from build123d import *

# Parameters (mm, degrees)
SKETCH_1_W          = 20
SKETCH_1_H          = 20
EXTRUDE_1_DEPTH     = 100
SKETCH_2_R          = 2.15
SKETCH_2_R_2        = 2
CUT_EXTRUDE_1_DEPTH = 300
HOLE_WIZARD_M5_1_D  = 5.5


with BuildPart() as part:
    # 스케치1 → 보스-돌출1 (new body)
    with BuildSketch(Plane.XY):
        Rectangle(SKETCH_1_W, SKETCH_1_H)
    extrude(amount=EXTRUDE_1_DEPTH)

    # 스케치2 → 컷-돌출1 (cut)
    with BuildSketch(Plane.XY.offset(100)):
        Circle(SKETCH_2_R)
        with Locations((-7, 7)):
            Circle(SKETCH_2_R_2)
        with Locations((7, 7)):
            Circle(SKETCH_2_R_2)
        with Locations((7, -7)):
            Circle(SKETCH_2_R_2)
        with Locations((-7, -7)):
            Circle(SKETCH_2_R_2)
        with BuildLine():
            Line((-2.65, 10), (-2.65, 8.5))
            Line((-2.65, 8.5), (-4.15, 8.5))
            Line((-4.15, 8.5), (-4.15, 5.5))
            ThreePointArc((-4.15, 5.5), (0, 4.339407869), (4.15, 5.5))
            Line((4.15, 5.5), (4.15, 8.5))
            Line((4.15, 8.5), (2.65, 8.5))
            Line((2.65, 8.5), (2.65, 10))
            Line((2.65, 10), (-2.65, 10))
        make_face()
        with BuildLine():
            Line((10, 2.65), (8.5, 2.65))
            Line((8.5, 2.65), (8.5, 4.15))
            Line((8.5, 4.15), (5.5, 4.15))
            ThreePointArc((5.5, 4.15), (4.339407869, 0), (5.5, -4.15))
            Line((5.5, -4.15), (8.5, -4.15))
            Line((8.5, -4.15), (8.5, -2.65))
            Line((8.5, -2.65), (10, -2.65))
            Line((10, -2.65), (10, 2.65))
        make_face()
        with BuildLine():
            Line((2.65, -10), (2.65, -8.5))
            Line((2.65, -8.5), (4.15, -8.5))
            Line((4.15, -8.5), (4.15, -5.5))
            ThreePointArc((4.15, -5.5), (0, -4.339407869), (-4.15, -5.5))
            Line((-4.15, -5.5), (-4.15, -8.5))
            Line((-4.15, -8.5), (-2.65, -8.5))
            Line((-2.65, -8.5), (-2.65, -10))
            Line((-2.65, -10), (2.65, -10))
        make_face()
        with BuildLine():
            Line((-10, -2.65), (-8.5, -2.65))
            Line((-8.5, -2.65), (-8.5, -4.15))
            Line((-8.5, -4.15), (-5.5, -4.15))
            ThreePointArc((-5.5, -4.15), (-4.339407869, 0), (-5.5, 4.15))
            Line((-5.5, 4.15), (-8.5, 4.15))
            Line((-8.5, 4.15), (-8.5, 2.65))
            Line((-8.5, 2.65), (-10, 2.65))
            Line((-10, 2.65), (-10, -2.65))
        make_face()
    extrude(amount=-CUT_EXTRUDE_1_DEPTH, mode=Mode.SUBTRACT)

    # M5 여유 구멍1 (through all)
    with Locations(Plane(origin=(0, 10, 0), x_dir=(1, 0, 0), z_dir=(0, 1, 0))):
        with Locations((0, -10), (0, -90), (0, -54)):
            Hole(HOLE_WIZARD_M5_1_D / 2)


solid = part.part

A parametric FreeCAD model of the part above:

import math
import FreeCAD as App
import Part
import Sketcher
Q = App.Units.Quantity


def add_polygon(sketch, points):
    """Adds a closed chain of lines whose ends are joined by coincident constraints."""
    first, n = sketch.GeometryCount, len(points)
    for a, b in zip(points, points[1:] + points[:1]):
        sketch.addGeometry(Part.LineSegment(App.Vector(*a, 0), App.Vector(*b, 0)), False)
    for i in range(n):
        sketch.addConstraint(Sketcher.Constraint("Coincident", first + i, 2, first + (i + 1) % n, 1))

doc = App.newDocument("Part")
body = doc.addObject("PartDesign::Body", "Body")

sketch1 = body.newObject("Sketcher::SketchObject", "Sketch")
sketch1.AttachmentSupport = (doc.getObject("XY_Plane"), [""])
sketch1.MapMode = "FlatFace"
add_polygon(sketch1, [(-10, 10), (-10, -10), (10, -10), (10, 10)])
sketch1.addConstraint(Sketcher.Constraint("Vertical", 0))
sketch1.addConstraint(Sketcher.Constraint("Horizontal", 1))
sketch1.addConstraint(Sketcher.Constraint("Vertical", 2))
sketch1.addConstraint(Sketcher.Constraint("Horizontal", 3))
sketch1.addConstraint(Sketcher.Constraint("Symmetric", 0, 2, 2, 2, -1, 1))
sketch1.addConstraint(Sketcher.Constraint("Equal", 3, 0))
sketch1.addConstraint(Sketcher.Constraint("DistanceX", 1, 1, 1, 2, Q("20 mm")))
pad1 = body.newObject("PartDesign::Pad", "Pad")
pad1.Profile = sketch1
pad1.Length = 100

sketch2 = body.newObject("Sketcher::SketchObject", "Sketch001")
sketch2.AttachmentSupport = (doc.getObject("XY_Plane"), [""])
sketch2.MapMode = "FlatFace"
sketch2.AttachmentOffset = App.Placement(App.Vector(0, 0, 100), App.Rotation())
sketch2.addGeometry(Part.Circle(App.Vector(0, 0, 0), App.Vector(0, 0, 1), 2.1), False)
sketch2.addGeometry(Part.Circle(App.Vector(-7, 7, 0), App.Vector(0, 0, 1), 2), False)
sketch2.addGeometry(Part.Circle(App.Vector(7, 7, 0), App.Vector(0, 0, 1), 2), False)
sketch2.addGeometry(Part.Circle(App.Vector(7, -7, 0), App.Vector(0, 0, 1), 2), False)
sketch2.addGeometry(Part.Circle(App.Vector(-7, -7, 0), App.Vector(0, 0, 1), 2), False)
sketch2.addGeometry(Part.LineSegment(App.Vector(-2.6, 10, 0), App.Vector(-2.6, 8.5, 0)), False)
sketch2.addGeometry(Part.LineSegment(App.Vector(-2.6, 8.5, 0), App.Vector(-4.2, 8.5, 0)), False)
sketch2.addGeometry(Part.LineSegment(App.Vector(-4.2, 8.5, 0), App.Vector(-4.2, 5.5, 0)), False)
sketch2.addGeometry(Part.ArcOfCircle(Part.Circle(App.Vector(0, 12.3, 0), App.Vector(0, 0, 1), 8), math.radians(-121), math.radians(-59)), False)
sketch2.addGeometry(Part.LineSegment(App.Vector(4.2, 5.5, 0), App.Vector(4.2, 8.5, 0)), False)
sketch2.addGeometry(Part.LineSegment(App.Vector(4.2, 8.5, 0), App.Vector(2.6, 8.5, 0)), False)
sketch2.addGeometry(Part.LineSegment(App.Vector(2.6, 8.5, 0), App.Vector(2.6, 10, 0)), False)
sketch2.addGeometry(Part.LineSegment(App.Vector(2.6, 10, 0), App.Vector(-2.6, 10, 0)), False)
sketch2.addGeometry(Part.LineSegment(App.Vector(10, 2.6, 0), App.Vector(8.5, 2.6, 0)), False)
sketch2.addGeometry(Part.LineSegment(App.Vector(8.5, 2.6, 0), App.Vector(8.5, 4.2, 0)), False)
sketch2.addGeometry(Part.LineSegment(App.Vector(8.5, 4.2, 0), App.Vector(5.5, 4.2, 0)), False)
sketch2.addGeometry(Part.ArcOfCircle(Part.Circle(App.Vector(12.3, 0, 0), App.Vector(0, 0, 1), 8), math.radians(149), math.radians(211)), False)
sketch2.addGeometry(Part.LineSegment(App.Vector(5.5, -4.2, 0), App.Vector(8.5, -4.2, 0)), False)
sketch2.addGeometry(Part.LineSegment(App.Vector(8.5, -4.2, 0), App.Vector(8.5, -2.6, 0)), False)
sketch2.addGeometry(Part.LineSegment(App.Vector(8.5, -2.6, 0), App.Vector(10, -2.6, 0)), False)
sketch2.addGeometry(Part.LineSegment(App.Vector(10, -2.6, 0), App.Vector(10, 2.6, 0)), False)
sketch2.addGeometry(Part.LineSegment(App.Vector(2.6, -10, 0), App.Vector(2.6, -8.5, 0)), False)
sketch2.addGeometry(Part.LineSegment(App.Vector(2.6, -8.5, 0), App.Vector(4.2, -8.5, 0)), False)
sketch2.addGeometry(Part.LineSegment(App.Vector(4.2, -8.5, 0), App.Vector(4.2, -5.5, 0)), False)
sketch2.addGeometry(Part.ArcOfCircle(Part.Circle(App.Vector(0, -12.3, 0), App.Vector(0, 0, 1), 8), math.radians(59), math.radians(121)), False)
sketch2.addGeometry(Part.LineSegment(App.Vector(-4.2, -5.5, 0), App.Vector(-4.2, -8.5, 0)), False)
sketch2.addGeometry(Part.LineSegment(App.Vector(-4.2, -8.5, 0), App.Vector(-2.6, -8.5, 0)), False)
sketch2.addGeometry(Part.LineSegment(App.Vector(-2.6, -8.5, 0), App.Vector(-2.6, -10, 0)), False)
sketch2.addGeometry(Part.LineSegment(App.Vector(-2.6, -10, 0), App.Vector(2.6, -10, 0)), False)
sketch2.addGeometry(Part.LineSegment(App.Vector(-10, -2.6, 0), App.Vector(-8.5, -2.6, 0)), False)
sketch2.addGeometry(Part.LineSegment(App.Vector(-8.5, -2.6, 0), App.Vector(-8.5, -4.2, 0)), False)
sketch2.addGeometry(Part.LineSegment(App.Vector(-8.5, -4.2, 0), App.Vector(-5.5, -4.2, 0)), False)
sketch2.addGeometry(Part.ArcOfCircle(Part.Circle(App.Vector(-12.3, 0, 0), App.Vector(0, 0, 1), 8), math.radians(-31), math.radians(31)), False)
sketch2.addGeometry(Part.LineSegment(App.Vector(-5.5, 4.2, 0), App.Vector(-8.5, 4.2, 0)), False)
sketch2.addGeometry(Part.LineSegment(App.Vector(-8.5, 4.2, 0), App.Vector(-8.5, 2.6, 0)), False)
sketch2.addGeometry(Part.LineSegment(App.Vector(-8.5, 2.6, 0), App.Vector(-10, 2.6, 0)), False)
sketch2.addGeometry(Part.LineSegment(App.Vector(-10, 2.6, 0), App.Vector(-10, -2.6, 0)), False)
sketch2.addConstraint(Sketcher.Constraint("Coincident", 5, 2, 6, 1))
sketch2.addConstraint(Sketcher.Constraint("Coincident", 6, 2, 7, 1))
sketch2.addConstraint(Sketcher.Constraint("Coincident", 7, 2, 8, 1))
sketch2.addConstraint(Sketcher.Constraint("Coincident", 8, 2, 9, 1))
sketch2.addConstraint(Sketcher.Constraint("Coincident", 9, 2, 10, 1))
sketch2.addConstraint(Sketcher.Constraint("Coincident", 10, 2, 11, 1))
sketch2.addConstraint(Sketcher.Constraint("Coincident", 11, 2, 12, 1))
sketch2.addConstraint(Sketcher.Constraint("Coincident", 12, 2, 5, 1))
sketch2.addConstraint(Sketcher.Constraint("Coincident", 13, 2, 14, 1))
sketch2.addConstraint(Sketcher.Constraint("Coincident", 14, 2, 15, 1))
sketch2.addConstraint(Sketcher.Constraint("Coincident", 15, 2, 16, 1))
sketch2.addConstraint(Sketcher.Constraint("Coincident", 16, 2, 17, 1))
sketch2.addConstraint(Sketcher.Constraint("Coincident", 17, 2, 18, 1))
sketch2.addConstraint(Sketcher.Constraint("Coincident", 18, 2, 19, 1))
sketch2.addConstraint(Sketcher.Constraint("Coincident", 19, 2, 20, 1))
sketch2.addConstraint(Sketcher.Constraint("Coincident", 20, 2, 13, 1))
sketch2.addConstraint(Sketcher.Constraint("Coincident", 21, 2, 22, 1))
sketch2.addConstraint(Sketcher.Constraint("Coincident", 22, 2, 23, 1))
sketch2.addConstraint(Sketcher.Constraint("Coincident", 23, 2, 24, 1))
sketch2.addConstraint(Sketcher.Constraint("Coincident", 24, 2, 25, 1))
sketch2.addConstraint(Sketcher.Constraint("Coincident", 25, 2, 26, 1))
sketch2.addConstraint(Sketcher.Constraint("Coincident", 26, 2, 27, 1))
sketch2.addConstraint(Sketcher.Constraint("Coincident", 27, 2, 28, 1))
sketch2.addConstraint(Sketcher.Constraint("Coincident", 28, 2, 21, 1))
sketch2.addConstraint(Sketcher.Constraint("Coincident", 29, 2, 30, 1))
sketch2.addConstraint(Sketcher.Constraint("Coincident", 30, 2, 31, 1))
sketch2.addConstraint(Sketcher.Constraint("Coincident", 31, 2, 32, 1))
sketch2.addConstraint(Sketcher.Constraint("Coincident", 32, 2, 33, 1))
sketch2.addConstraint(Sketcher.Constraint("Coincident", 33, 2, 34, 1))
sketch2.addConstraint(Sketcher.Constraint("Coincident", 34, 2, 35, 1))
sketch2.addConstraint(Sketcher.Constraint("Coincident", 35, 2, 36, 1))
sketch2.addConstraint(Sketcher.Constraint("Coincident", 36, 2, 29, 1))
sketch2.addConstraint(Sketcher.Constraint("Vertical", 5))
sketch2.addConstraint(Sketcher.Constraint("Horizontal", 6))
sketch2.addConstraint(Sketcher.Constraint("Vertical", 7))
sketch2.addConstraint(Sketcher.Constraint("Vertical", 9))
sketch2.addConstraint(Sketcher.Constraint("Horizontal", 10))
sketch2.addConstraint(Sketcher.Constraint("Vertical", 11))
sketch2.addConstraint(Sketcher.Constraint("Horizontal", 12))
sketch2.addConstraint(Sketcher.Constraint("Horizontal", 13))
sketch2.addConstraint(Sketcher.Constraint("Vertical", 14))
sketch2.addConstraint(Sketcher.Constraint("Horizontal", 15))
sketch2.addConstraint(Sketcher.Constraint("Horizontal", 17))
sketch2.addConstraint(Sketcher.Constraint("Vertical", 18))
sketch2.addConstraint(Sketcher.Constraint("Horizontal", 19))
sketch2.addConstraint(Sketcher.Constraint("Vertical", 20))
sketch2.addConstraint(Sketcher.Constraint("Vertical", 21))
sketch2.addConstraint(Sketcher.Constraint("Horizontal", 22))
sketch2.addConstraint(Sketcher.Constraint("Vertical", 23))
sketch2.addConstraint(Sketcher.Constraint("Vertical", 25))
sketch2.addConstraint(Sketcher.Constraint("Horizontal", 26))
sketch2.addConstraint(Sketcher.Constraint("Vertical", 27))
sketch2.addConstraint(Sketcher.Constraint("Horizontal", 28))
sketch2.addConstraint(Sketcher.Constraint("Horizontal", 29))
sketch2.addConstraint(Sketcher.Constraint("Vertical", 30))
sketch2.addConstraint(Sketcher.Constraint("Horizontal", 31))
sketch2.addConstraint(Sketcher.Constraint("Horizontal", 33))
sketch2.addConstraint(Sketcher.Constraint("Vertical", 34))
sketch2.addConstraint(Sketcher.Constraint("Horizontal", 35))
sketch2.addConstraint(Sketcher.Constraint("Vertical", 36))
sketch2.addConstraint(Sketcher.Constraint("Coincident", 0, 3, -1, 1))
sketch2.addConstraint(Sketcher.Constraint("Equal", 1, 2))
sketch2.addConstraint(Sketcher.Constraint("Equal", 2, 3))
sketch2.addConstraint(Sketcher.Constraint("Equal", 3, 4))
sketch2.addConstraint(Sketcher.Constraint("Equal", 8, 16))
sketch2.addConstraint(Sketcher.Constraint("Equal", 16, 24))
sketch2.addConstraint(Sketcher.Constraint("Equal", 24, 32))
sketch2.addConstraint(Sketcher.Constraint("Symmetric", 1, 3, 3, 3, -1, 1))
sketch2.addConstraint(Sketcher.Constraint("Symmetric", 2, 3, 4, 3, -1, 1))
sketch2.addConstraint(Sketcher.Constraint("Symmetric", 8, 3, 24, 3, -1, 1))
sketch2.addConstraint(Sketcher.Constraint("Symmetric", 16, 3, 32, 3, -1, 1))
sketch2.addConstraint(Sketcher.Constraint("Symmetric", 5, 2, 21, 2, -1, 1))
sketch2.addConstraint(Sketcher.Constraint("Symmetric", 9, 2, 25, 2, -1, 1))
sketch2.addConstraint(Sketcher.Constraint("Symmetric", 11, 2, 27, 2, -1, 1))
sketch2.addConstraint(Sketcher.Constraint("Symmetric", 13, 2, 29, 2, -1, 1))
sketch2.addConstraint(Sketcher.Constraint("Symmetric", 17, 2, 33, 2, -1, 1))
sketch2.addConstraint(Sketcher.Constraint("Symmetric", 19, 2, 35, 2, -1, 1))
sketch2.addConstraint(Sketcher.Constraint("Symmetric", 1, 3, 2, 3, -2))
sketch2.addConstraint(Sketcher.Constraint("Symmetric", 7, 2, 8, 2, -2))
sketch2.addConstraint(Sketcher.Constraint("Symmetric", 5, 2, 10, 2, -2))
sketch2.addConstraint(Sketcher.Constraint("Symmetric", 18, 2, 29, 2, -2))
sketch2.addConstraint(Sketcher.Constraint("Symmetric", 16, 2, 31, 2, -2))
sketch2.addConstraint(Sketcher.Constraint("Horizontal", 23, 2, 24, 2))
sketch2.addConstraint(Sketcher.Constraint("Horizontal", 15, 2, 32, 2))
sketch2.addConstraint(Sketcher.Constraint("Equal", 10, 13))
sketch2.addConstraint(Sketcher.Constraint("Equal", 35, 5))
sketch2.addConstraint(Sketcher.Constraint("Equal", 33, 7))
sketch2.addConstraint(Sketcher.Constraint("Equal", 11, 14))
sketch2.addConstraint(Sketcher.Constraint("Equal", 28, 20))
sketch2.addConstraint(Sketcher.Constraint("Diameter", 1, Q("4 mm")))
sketch2.addConstraint(Sketcher.Constraint("Radius", 8, Q("8 mm")))
sketch2.addConstraint(Sketcher.Constraint("Diameter", 0, Q("4.3 mm")))
sketch2.addConstraint(Sketcher.Constraint("DistanceX", 15, 2, 15, 1, Q("3 mm")))
sketch2.addConstraint(Sketcher.Constraint("DistanceX", 6, 2, 6, 1, Q("1.5 mm")))
sketch2.addConstraint(Sketcher.Constraint("DistanceX", 12, 2, 12, 1, Q("5.3 mm")))
sketch2.addConstraint(Sketcher.Constraint("DistanceX", 1, 3, -1, 1, Q("7 mm")))
sketch2.addConstraint(Sketcher.Constraint("DistanceY", -1, 1, 1, 3, Q("7 mm")))
sketch2.addConstraint(Sketcher.Constraint("DistanceY", -1, 1, 11, 2, Q("10 mm")))
sketch2.addConstraint(Sketcher.Constraint("DistanceX", -1, 1, 19, 2, Q("10 mm")))
pocket1 = body.newObject("PartDesign::Pocket", "Pocket")
pocket1.Profile = sketch2
pocket1.Length = 300

sketch3 = body.newObject("Sketcher::SketchObject", "Sketch002")
sketch3.AttachmentSupport = (doc.getObject("XZ_Plane"), [""])
sketch3.MapMode = "FlatFace"
sketch3.AttachmentOffset = App.Placement(App.Vector(0, 0, -10), App.Rotation())
sketch3.addGeometry(Part.Circle(App.Vector(0, 10, 0), App.Vector(0, 0, 1), 2.8), False)
sketch3.addGeometry(Part.Circle(App.Vector(0, 90, 0), App.Vector(0, 0, 1), 2.8), False)
sketch3.addGeometry(Part.Circle(App.Vector(0, 54, 0), App.Vector(0, 0, 1), 2.8), False)
sketch3.addConstraint(Sketcher.Constraint("Equal", 0, 1))
sketch3.addConstraint(Sketcher.Constraint("Equal", 1, 2))
sketch3.addConstraint(Sketcher.Constraint("PointOnObject", 0, 3, -2))
sketch3.addConstraint(Sketcher.Constraint("PointOnObject", 1, 3, -2))
sketch3.addConstraint(Sketcher.Constraint("PointOnObject", 2, 3, -2))
sketch3.addConstraint(Sketcher.Constraint("Diameter", 0, Q("5.5 mm")))
sketch3.addConstraint(Sketcher.Constraint("DistanceY", -1, 1, 0, 3, Q("10 mm")))
sketch3.addConstraint(Sketcher.Constraint("DistanceY", -1, 1, 1, 3, Q("90 mm")))
sketch3.addConstraint(Sketcher.Constraint("DistanceY", -1, 1, 2, 3, Q("54 mm")))
doc.recompute()
hole = body.newObject("PartDesign::Hole", "Hole")
hole.Profile = sketch3
hole.ThreadType = "None"
hole.Diameter = 5.5
hole.DepthType = "ThroughAll"
hole.Reversed = True

doc.recompute()
